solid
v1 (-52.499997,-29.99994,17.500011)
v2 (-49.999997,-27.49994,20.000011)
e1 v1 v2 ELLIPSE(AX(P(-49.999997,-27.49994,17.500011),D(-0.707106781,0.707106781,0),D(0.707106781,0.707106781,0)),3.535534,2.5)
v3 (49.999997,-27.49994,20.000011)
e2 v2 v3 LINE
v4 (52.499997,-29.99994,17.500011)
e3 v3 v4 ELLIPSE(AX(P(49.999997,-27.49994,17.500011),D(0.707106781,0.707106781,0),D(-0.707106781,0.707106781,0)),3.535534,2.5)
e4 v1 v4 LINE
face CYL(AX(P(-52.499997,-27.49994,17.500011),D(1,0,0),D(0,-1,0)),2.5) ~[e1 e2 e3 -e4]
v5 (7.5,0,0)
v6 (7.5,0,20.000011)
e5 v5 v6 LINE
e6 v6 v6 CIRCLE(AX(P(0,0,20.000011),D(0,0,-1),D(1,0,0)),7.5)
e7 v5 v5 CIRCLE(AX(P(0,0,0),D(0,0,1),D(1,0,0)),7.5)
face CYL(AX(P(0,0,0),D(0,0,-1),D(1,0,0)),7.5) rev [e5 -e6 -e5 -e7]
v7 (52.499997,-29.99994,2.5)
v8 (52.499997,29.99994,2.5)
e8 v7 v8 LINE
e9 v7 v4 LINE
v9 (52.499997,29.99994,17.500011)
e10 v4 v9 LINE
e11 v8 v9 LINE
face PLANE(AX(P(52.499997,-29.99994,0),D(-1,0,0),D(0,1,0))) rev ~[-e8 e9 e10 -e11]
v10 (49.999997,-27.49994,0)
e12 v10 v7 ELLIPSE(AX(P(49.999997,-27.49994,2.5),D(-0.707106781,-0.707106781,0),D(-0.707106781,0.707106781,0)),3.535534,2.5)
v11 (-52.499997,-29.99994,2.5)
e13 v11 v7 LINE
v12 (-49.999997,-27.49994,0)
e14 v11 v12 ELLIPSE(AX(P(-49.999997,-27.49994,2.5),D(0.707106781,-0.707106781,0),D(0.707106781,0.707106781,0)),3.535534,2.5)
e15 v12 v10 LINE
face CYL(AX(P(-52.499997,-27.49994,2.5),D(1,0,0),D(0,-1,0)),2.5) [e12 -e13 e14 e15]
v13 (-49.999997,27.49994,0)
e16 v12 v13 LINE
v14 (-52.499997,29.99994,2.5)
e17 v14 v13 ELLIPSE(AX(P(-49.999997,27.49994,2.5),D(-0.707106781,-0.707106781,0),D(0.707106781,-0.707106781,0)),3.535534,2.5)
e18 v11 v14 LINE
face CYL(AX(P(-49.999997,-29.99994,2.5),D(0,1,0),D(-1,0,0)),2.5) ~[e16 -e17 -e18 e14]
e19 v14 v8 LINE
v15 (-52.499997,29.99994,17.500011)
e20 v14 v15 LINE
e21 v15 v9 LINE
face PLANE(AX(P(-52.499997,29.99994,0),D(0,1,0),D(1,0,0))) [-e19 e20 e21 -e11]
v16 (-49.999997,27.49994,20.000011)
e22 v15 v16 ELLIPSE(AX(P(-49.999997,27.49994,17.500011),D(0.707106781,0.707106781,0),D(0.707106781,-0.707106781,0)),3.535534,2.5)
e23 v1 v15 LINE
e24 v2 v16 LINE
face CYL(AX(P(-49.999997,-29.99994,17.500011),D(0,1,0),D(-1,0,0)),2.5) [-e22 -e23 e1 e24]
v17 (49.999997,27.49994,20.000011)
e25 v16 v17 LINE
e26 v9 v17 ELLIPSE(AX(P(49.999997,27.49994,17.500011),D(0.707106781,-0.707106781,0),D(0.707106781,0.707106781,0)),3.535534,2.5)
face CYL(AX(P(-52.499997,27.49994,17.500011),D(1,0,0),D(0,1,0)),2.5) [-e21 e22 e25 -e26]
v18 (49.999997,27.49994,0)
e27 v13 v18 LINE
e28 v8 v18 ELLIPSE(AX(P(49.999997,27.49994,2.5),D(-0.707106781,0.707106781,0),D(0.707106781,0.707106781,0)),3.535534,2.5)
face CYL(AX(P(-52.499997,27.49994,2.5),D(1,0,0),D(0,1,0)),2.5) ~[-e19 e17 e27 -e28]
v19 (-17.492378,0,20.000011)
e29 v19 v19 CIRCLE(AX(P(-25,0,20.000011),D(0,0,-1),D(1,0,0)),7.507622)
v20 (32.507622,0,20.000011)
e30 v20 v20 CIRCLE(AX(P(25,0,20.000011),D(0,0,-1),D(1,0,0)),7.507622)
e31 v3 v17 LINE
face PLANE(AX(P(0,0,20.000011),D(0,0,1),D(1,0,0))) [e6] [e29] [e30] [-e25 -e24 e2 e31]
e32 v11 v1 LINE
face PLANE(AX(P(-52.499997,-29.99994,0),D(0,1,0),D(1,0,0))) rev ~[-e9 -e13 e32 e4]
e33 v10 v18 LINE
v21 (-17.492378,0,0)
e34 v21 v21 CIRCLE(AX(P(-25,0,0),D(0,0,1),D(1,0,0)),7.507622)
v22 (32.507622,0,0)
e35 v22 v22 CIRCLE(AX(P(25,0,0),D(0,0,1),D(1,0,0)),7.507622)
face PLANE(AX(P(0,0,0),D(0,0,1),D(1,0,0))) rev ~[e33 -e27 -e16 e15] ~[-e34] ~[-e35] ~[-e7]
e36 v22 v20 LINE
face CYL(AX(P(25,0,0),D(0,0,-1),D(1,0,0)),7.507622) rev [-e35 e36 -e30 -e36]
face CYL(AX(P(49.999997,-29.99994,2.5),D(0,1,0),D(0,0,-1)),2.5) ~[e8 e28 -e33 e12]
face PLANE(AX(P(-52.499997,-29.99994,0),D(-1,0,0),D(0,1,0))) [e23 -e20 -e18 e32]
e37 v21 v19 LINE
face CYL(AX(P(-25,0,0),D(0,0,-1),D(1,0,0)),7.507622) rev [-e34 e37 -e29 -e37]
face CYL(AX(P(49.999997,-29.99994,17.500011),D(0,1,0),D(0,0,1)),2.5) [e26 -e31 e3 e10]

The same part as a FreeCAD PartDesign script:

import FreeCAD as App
import Part
import Sketcher

V = App.Vector


def edges_at(feature, points):
    """Names of the edges that pass closest to the given points."""
    edges = feature.Shape.Edges
    near = lambda p: min(range(len(edges)), key=lambda i: edges[i].distToShape(Part.Vertex(*p))[0])
    return sorted({f"Edge{near(p) + 1}" for p in points})


def add_polygon(sketch, points):
    """Adds a closed chain of lines whose ends are joined by coincident constraints."""
    first, n = sketch.GeometryCount, len(points)
    for a, b in zip(points, points[1:] + points[:1]):
        sketch.addGeometry(Part.LineSegment(App.Vector(*a, 0), App.Vector(*b, 0)), False)
    for i in range(n):
        sketch.addConstraint(Sketcher.Constraint("Coincident", first + i, 2, first + (i + 1) % n, 1))

doc = App.newDocument("Part")
body = doc.addObject("PartDesign::Body", "Body")

# Sketch on XY plane
sketch1 = body.newObject("Sketcher::SketchObject", "Sketch")
sketch1.AttachmentSupport = (doc.getObject("XY_Plane"), [""])
sketch1.MapMode = "FlatFace"
add_polygon(sketch1, [(-52, 30), (-52, -30), (52, -30), (52, 30)])  # lines 0-3
sketch1.addConstraint([
    Sketcher.Constraint("Vertical", 0),
    Sketcher.Constraint("Horizontal", 1),
    Sketcher.Constraint("Vertical", 2),
    Sketcher.Constraint("Horizontal", 3),
    Sketcher.Constraint("Symmetric", 0, 2, 2, 2, -1, 1),
    Sketcher.Constraint("DistanceY", 0, 2, 0, 1, 59.99988),
    Sketcher.Constraint("DistanceX", 1, 1, 1, 2, 104.999994),
])
pad1 = body.newObject("PartDesign::Pad", "Pad")
pad1.Profile = sketch1
pad1.Length = 20.000011

# Sketch on XY plane
sketch2 = body.newObject("Sketcher::SketchObject", "Sketch001")
sketch2.AttachmentSupport = (doc.getObject("XY_Plane"), [""])
sketch2.MapMode = "FlatFace"
sketch2.addGeometry([
    Part.Circle(V(0, 0, 0), V(0, 0, 1), 8),
    Part.Circle(V(-25, 0, 0), V(0, 0, 1), 8),
    Part.Circle(V(25, 0, 0), V(0, 0, 1), 8),
], False)
sketch2.addConstraint([
    Sketcher.Constraint("Coincident", 0, 3, -1, 1),
    Sketcher.Constraint("Equal", 1, 2),
    Sketcher.Constraint("Symmetric", 1, 3, 2, 3, -1, 1),
    Sketcher.Constraint("PointOnObject", 1, 3, -1),
    Sketcher.Constraint("Diameter", 0, 15.0),
    Sketcher.Constraint("DistanceX", 1, 3, -1, 1, 25.0),
    Sketcher.Constraint("Diameter", 1, 15.015244),
])
pocket1 = body.newObject("PartDesign::Pocket", "Pocket")
pocket1.Profile = sketch2
pocket1.Type = "ThroughAll"
pocket1.Reversed = True
doc.recompute()

fillet = body.newObject("PartDesign::Fillet", "Fillet")
fillet.Base = (pocket1, edges_at(pocket1, [
    (0, 30, 0),
    (52.5, 0, 0),
    (0, -30, 0),
    (-52.5, 0, 0),
    (0, 30, 20),
    (52.5, 0, 20),
    (0, -30, 20),
    (-52.5, 0, 20),
]))
fillet.Radius = 2.5

doc.recompute()
